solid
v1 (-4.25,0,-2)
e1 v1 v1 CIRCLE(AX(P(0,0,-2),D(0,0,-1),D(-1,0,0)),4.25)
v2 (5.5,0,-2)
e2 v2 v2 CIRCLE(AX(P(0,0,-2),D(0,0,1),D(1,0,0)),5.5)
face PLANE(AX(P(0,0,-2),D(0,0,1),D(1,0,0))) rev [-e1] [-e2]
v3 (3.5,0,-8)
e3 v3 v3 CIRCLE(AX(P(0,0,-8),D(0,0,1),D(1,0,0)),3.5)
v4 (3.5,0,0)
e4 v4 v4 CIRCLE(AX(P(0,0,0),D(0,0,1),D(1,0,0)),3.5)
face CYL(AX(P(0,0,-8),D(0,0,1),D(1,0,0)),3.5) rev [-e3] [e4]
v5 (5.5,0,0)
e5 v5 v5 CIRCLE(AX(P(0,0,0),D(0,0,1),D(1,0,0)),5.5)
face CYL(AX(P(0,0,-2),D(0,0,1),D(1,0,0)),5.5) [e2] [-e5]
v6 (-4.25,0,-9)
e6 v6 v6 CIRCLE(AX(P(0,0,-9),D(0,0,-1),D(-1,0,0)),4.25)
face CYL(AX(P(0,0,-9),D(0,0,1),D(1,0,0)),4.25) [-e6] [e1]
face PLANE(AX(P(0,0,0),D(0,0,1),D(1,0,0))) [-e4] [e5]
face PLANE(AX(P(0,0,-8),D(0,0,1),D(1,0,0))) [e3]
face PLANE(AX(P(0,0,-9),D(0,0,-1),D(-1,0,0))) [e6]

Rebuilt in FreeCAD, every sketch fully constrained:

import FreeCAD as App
import Part
import Sketcher
Q = App.Units.Quantity

doc = App.newDocument("Part")
body = doc.addObject("PartDesign::Body", "Body")

# Sketch on XY plane
sketch1 = body.newObject("Sketcher::SketchObject", "Sketch")
sketch1.AttachmentSupport = (doc.getObject("XY_Plane"), [""])
sketch1.MapMode = "FlatFace"
sketch1.addGeometry(Part.Circle(App.Vector(0, 0, 0), App.Vector(0, 0, 1), 5.5), False)
sketch1.addConstraint([
    Sketcher.Constraint("Coincident", 0, 3, -1, 1),
    Sketcher.Constraint("Diameter", 0, Q("11 mm")),
])
pad1 = body.newObject("PartDesign::Pad", "Pad")
pad1.Profile = sketch1
pad1.Length = 2
pad1.Reversed = True

# Sketch on XY plane
sketch2 = body.newObject("Sketcher::SketchObject", "Sketch001")
sketch2.AttachmentSupport = (doc.getObject("XY_Plane"), [""])
sketch2.MapMode = "FlatFace"
sketch2.AttachmentOffset = App.Placement(App.Vector(0, 0, -2), App.Rotation())
sketch2.addGeometry(Part.Circle(App.Vector(0, 0, 0), App.Vector(0, 0, 1), 4.25), False)
sketch2.addConstraint([
    Sketcher.Constraint("Coincident", 0, 3, -1, 1),
    Sketcher.Constraint("Diameter", 0, Q("8.5 mm")),
])
pad2 = body.newObject("PartDesign::Pad", "Pad001")
pad2.Profile = sketch2
pad2.Length = 7
pad2.Reversed = True

# Sketch on XY plane
sketch3 = body.newObject("Sketcher::SketchObject", "Sketch002")
sketch3.AttachmentSupport = (doc.getObject("XY_Plane"), [""])
sketch3.MapMode = "FlatFace"
sketch3.addGeometry(Part.Circle(App.Vector(0, 0, 0), App.Vector(0, 0, 1), 3.5), False)
sketch3.addConstraint([
    Sketcher.Constraint("Coincident", 0, 3, -1, 1),
    Sketcher.Constraint("Diameter", 0, Q("7 mm")),
])
pocket1 = body.newObject("PartDesign::Pocket", "Pocket")
pocket1.Profile = sketch3
pocket1.Length = 8

doc.recompute()
